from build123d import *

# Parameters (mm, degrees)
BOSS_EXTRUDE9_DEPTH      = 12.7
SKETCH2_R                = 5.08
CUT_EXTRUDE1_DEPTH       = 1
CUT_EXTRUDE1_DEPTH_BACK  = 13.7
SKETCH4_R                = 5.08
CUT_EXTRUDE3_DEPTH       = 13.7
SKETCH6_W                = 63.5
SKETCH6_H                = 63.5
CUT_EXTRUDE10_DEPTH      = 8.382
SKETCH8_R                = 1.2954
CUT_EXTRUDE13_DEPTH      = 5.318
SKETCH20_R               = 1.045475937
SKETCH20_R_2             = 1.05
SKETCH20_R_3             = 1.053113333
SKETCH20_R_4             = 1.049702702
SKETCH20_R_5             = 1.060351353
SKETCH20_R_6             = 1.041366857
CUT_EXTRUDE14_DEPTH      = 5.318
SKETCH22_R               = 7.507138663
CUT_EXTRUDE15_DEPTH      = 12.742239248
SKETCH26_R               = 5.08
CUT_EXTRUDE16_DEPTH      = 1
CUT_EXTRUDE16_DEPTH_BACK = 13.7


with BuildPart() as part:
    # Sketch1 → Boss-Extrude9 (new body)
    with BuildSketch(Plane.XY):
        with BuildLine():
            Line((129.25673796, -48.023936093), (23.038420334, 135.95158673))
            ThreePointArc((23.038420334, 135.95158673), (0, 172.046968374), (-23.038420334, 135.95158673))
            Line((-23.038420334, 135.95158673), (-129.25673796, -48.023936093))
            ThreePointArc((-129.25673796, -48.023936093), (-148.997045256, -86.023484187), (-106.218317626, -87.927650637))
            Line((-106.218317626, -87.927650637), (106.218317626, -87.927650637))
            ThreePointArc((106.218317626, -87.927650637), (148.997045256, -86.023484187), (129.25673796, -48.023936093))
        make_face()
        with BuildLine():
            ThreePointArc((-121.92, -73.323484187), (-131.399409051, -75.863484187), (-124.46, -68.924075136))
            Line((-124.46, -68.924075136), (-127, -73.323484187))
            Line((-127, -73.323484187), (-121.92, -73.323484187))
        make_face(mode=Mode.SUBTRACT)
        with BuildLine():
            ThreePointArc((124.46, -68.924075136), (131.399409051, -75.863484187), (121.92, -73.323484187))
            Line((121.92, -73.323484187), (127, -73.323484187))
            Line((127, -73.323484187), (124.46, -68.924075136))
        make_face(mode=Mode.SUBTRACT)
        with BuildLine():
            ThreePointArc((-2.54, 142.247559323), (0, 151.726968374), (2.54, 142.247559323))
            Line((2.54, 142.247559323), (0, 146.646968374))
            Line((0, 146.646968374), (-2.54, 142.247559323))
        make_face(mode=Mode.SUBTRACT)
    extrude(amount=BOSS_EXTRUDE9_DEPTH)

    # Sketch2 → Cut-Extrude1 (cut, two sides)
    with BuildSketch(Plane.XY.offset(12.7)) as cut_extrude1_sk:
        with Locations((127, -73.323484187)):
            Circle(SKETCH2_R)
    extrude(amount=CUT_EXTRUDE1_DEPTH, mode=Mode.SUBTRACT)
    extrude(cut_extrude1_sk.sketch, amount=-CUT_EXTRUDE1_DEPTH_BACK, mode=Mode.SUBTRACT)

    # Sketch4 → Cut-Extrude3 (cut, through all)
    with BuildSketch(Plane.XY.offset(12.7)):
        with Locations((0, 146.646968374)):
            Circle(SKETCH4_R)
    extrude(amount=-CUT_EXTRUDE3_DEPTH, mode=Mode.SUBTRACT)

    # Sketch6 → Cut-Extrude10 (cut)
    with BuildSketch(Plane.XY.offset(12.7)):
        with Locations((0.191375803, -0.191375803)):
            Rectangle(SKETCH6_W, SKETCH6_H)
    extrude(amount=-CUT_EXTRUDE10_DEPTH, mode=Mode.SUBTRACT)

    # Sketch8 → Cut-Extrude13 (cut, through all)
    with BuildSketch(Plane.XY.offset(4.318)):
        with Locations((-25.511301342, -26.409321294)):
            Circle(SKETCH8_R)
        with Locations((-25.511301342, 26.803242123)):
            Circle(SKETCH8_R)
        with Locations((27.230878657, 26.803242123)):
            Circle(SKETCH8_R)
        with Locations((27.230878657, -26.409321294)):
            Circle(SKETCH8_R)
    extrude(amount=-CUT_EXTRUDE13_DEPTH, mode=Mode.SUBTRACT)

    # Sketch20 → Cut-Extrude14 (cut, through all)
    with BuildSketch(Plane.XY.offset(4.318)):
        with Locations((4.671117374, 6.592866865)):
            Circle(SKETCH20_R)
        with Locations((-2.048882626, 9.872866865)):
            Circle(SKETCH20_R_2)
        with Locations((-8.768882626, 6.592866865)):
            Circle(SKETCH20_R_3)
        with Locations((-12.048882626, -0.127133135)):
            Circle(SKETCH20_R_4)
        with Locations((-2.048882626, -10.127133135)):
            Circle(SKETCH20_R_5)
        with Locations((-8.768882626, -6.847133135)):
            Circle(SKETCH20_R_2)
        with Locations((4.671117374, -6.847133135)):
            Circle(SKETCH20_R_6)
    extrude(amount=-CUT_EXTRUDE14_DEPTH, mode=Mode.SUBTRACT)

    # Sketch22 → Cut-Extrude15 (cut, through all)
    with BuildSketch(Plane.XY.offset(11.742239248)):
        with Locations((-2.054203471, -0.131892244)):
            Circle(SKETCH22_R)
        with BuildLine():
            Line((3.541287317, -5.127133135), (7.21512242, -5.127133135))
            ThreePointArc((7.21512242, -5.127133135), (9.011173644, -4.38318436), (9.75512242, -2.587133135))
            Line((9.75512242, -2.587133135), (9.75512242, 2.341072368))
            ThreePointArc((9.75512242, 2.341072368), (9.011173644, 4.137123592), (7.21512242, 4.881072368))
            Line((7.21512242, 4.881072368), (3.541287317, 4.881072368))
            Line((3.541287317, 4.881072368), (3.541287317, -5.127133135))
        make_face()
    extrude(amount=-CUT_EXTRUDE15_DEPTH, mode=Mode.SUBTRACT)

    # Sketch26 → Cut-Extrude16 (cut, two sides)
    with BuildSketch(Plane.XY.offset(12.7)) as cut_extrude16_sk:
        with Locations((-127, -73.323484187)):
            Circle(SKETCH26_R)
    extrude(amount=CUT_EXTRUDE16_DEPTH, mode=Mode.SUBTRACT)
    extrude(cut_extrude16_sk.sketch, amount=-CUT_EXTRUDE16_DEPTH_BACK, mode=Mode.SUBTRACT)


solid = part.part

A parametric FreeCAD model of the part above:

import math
import FreeCAD as App
import Part
import Sketcher
from FreeCAD import Vector
Q = App.Units.Quantity


def add_polygon(sketch, points):
    """Adds a closed chain of lines whose ends are joined by coincident constraints."""
    first, n = sketch.GeometryCount, len(points)
    for a, b in zip(points, points[1:] + points[:1]):
        sketch.addGeometry(Part.LineSegment(App.Vector(*a, 0), App.Vector(*b, 0)), False)
    for i in range(n):
        sketch.addConstraint(Sketcher.Constraint("Coincident", first + i, 2, first + (i + 1) % n, 1))

doc = App.newDocument("Part")
body = doc.addObject("PartDesign::Body", "Body")

sketch1 = body.newObject("Sketcher::SketchObject", "Sketch")
sketch1.AttachmentSupport = (doc.getObject("XY_Plane"), [""])
sketch1.MapMode = "FlatFace"
sketch1.addGeometry([
    Part.LineSegment(Vector(129.256738, -48.023936, 0), Vector(23.03842, 135.951587, 0)),
    Part.ArcOfCircle(Part.Circle(Vector(0, 146.646968, 0), Vector(0, 0, 1), 25.4), math.radians(-24.902666), math.radians(204.902666)),
    Part.LineSegment(Vector(-23.03842, 135.951587, 0), Vector(-129.256738, -48.023936, 0)),
    Part.ArcOfCircle(Part.Circle(Vector(-127, -73.323484, 0), Vector(0, 0, 1), 25.4), math.radians(95.097334), math.radians(324.902666)),
    Part.LineSegment(Vector(-106.218318, -87.927651, 0), Vector(106.218318, -87.927651, 0)),
    Part.ArcOfCircle(Part.Circle(Vector(127, -73.323484, 0), Vector(0, 0, 1), 25.4), math.radians(-144.902666), math.radians(84.902666)),
    Part.LineSegment(Vector(-127, -73.323484, 0), Vector(-121.92, -73.323484, 0)),
    Part.ArcOfCircle(Part.Circle(Vector(-127, -73.323484, 0), Vector(0, 0, 1), 5.08), math.radians(60), math.radians(360)),
    Part.LineSegment(Vector(-124.46, -68.924075, 0), Vector(-127, -73.323484, 0)),
    Part.LineSegment(Vector(127, -73.323484, 0), Vector(124.46, -68.924075, 0)),
    Part.ArcOfCircle(Part.Circle(Vector(127, -73.323484, 0), Vector(0, 0, 1), 5.08), math.radians(180), math.radians(480)),
    Part.LineSegment(Vector(121.92, -73.323484, 0), Vector(127, -73.323484, 0)),
    Part.LineSegment(Vector(0, 146.646968, 0), Vector(-2.54, 142.247559, 0)),
    Part.ArcOfCircle(Part.Circle(Vector(0, 146.646968, 0), Vector(0, 0, 1), 5.08), math.radians(-60), math.radians(240)),
    Part.LineSegment(Vector(2.54, 142.247559, 0), Vector(0, 146.646968, 0)),
], False)
sketch1.addConstraint([
    Sketcher.Constraint("Coincident", 0, 2, 1, 1),
    Sketcher.Constraint("Coincident", 1, 2, 2, 1),
    Sketcher.Constraint("Coincident", 2, 2, 3, 1),
    Sketcher.Constraint("Coincident", 3, 2, 4, 1),
    Sketcher.Constraint("Coincident", 4, 2, 5, 1),
    Sketcher.Constraint("Coincident", 5, 2, 0, 1),
    Sketcher.Constraint("Coincident", 6, 2, 7, 2),
    Sketcher.Constraint("Coincident", 7, 1, 8, 1),
    Sketcher.Constraint("Coincident", 8, 2, 6, 1),
    Sketcher.Constraint("Coincident", 9, 2, 10, 2),
    Sketcher.Constraint("Coincident", 10, 1, 11, 1),
    Sketcher.Constraint("Coincident", 11, 2, 9, 1),
    Sketcher.Constraint("Coincident", 12, 2, 13, 2),
    Sketcher.Constraint("Coincident", 13, 1, 14, 1),
    Sketcher.Constraint("Coincident", 14, 2, 12, 1),
    Sketcher.Constraint("Horizontal", 4),
    Sketcher.Constraint("Horizontal", 6),
    Sketcher.Constraint("Horizontal", 11),
    Sketcher.Constraint("Coincident", 7, 3, 3, 3),
    Sketcher.Constraint("Coincident", 10, 3, 5, 3),
    Sketcher.Constraint("Coincident", 13, 3, 1, 3),
    Sketcher.Constraint("Coincident", 8, 2, 3, 3),
    Sketcher.Constraint("Coincident", 11, 2, 5, 3),
    Sketcher.Constraint("Coincident", 14, 2, 1, 3),
    Sketcher.Constraint("Equal", 1, 3),
    Sketcher.Constraint("Equal", 3, 5),
    Sketcher.Constraint("Equal", 7, 10),
    Sketcher.Constraint("Equal", 10, 13),
    Sketcher.Constraint("Symmetric", 3, 3, 5, 3, -2),
    Sketcher.Constraint("Symmetric", 0, 2, 1, 2, -2),
    Sketcher.Constraint("Parallel", 2, 8),
    Sketcher.Constraint("Parallel", 0, 9),
    Sketcher.Constraint("Parallel", 8, 12),
    Sketcher.Constraint("Parallel", 9, 14),
    Sketcher.Constraint("Horizontal", 2, 2, 5, 2),
    Sketcher.Constraint("Radius", 1, Q("1 in")),
    Sketcher.Constraint("Radius", 7, Q("0.2 in")),
    Sketcher.Constraint("DistanceX", 3, 3, -1, 1, Q("5 in")),
    Sketcher.Constraint("Angle", 0, Q("120 deg")),
    Sketcher.Constraint("DistanceX", 4, 1, 4, 2, Q("212.436635 mm")),
    Sketcher.Constraint("DistanceY", -1, 1, 1, 3, Q("146.646968 mm")),
    Sketcher.Constraint("DistanceX", -1, 1, 0, 2, Q("23.03842 mm")),
    Sketcher.Constraint("DistanceY", 3, 2, -1, 1, Q("87.927651 mm")),
])
pad1 = body.newObject("PartDesign::Pad", "Pad")
pad1.Profile = sketch1
pad1.Length = Q("0.5 in")

sketch2 = body.newObject("Sketcher::SketchObject", "Sketch001")
sketch2.AttachmentSupport = (doc.getObject("XY_Plane"), [""])
sketch2.MapMode = "FlatFace"
sketch2.AttachmentOffset = App.Placement(Vector(0, 0, 0.5 * 25.4), App.Rotation())
sketch2.addGeometry(Part.Circle(Vector(127, -73.323484, 0), Vector(0, 0, 1), 5.08), False)
sketch2.addConstraint([
    Sketcher.Constraint("Diameter", 0, Q("0.4 in")),
    Sketcher.Constraint("DistanceX", -1, 1, 0, 3, Q("5 in")),
    Sketcher.Constraint("DistanceY", 0, 3, -1, 1, Q("73.323484 mm")),
])
pocket1 = body.newObject("PartDesign::Pocket", "Pocket")
pocket1.Profile = sketch2
pocket1.Type = "ThroughAll"
pocket1.Midplane = True

sketch3 = body.newObject("Sketcher::SketchObject", "Sketch002")
sketch3.AttachmentSupport = (doc.getObject("XY_Plane"), [""])
sketch3.MapMode = "FlatFace"
sketch3.AttachmentOffset = App.Placement(Vector(0, 0, 0.5 * 25.4), App.Rotation())
sketch3.addGeometry(Part.Circle(Vector(0, 146.646968, 0), Vector(0, 0, 1), 5.08), False)
sketch3.addConstraint([
    Sketcher.Constraint("PointOnObject", 0, 3, -2),
    Sketcher.Constraint("Diameter", 0, Q("0.4 in")),
    Sketcher.Constraint("DistanceY", -1, 1, 0, 3, Q("146.646968 mm")),
])
pocket2 = body.newObject("PartDesign::Pocket", "Pocket001")
pocket2.Profile = sketch3
pocket2.Type = "ThroughAll"

sketch4 = body.newObject("Sketcher::SketchObject", "Sketch003")
sketch4.AttachmentSupport = (doc.getObject("XY_Plane"), [""])
sketch4.MapMode = "FlatFace"
sketch4.AttachmentOffset = App.Placement(Vector(0, 0, 0.5 * 25.4), App.Rotation())
add_polygon(sketch4, [(-31.558624, 31.558624), (-31.558624, -31.941376), (31.941376, -31.941376), (31.941376, 31.558624)])
sketch4.addConstraint([
    Sketcher.Constraint("Vertical", 0),
    Sketcher.Constraint("Horizontal", 1),
    Sketcher.Constraint("Vertical", 2),
    Sketcher.Constraint("Horizontal", 3),
    Sketcher.Constraint("Equal", 3, 0),
    Sketcher.Constraint("DistanceX", 1, 1, 1, 2, Q("2.5 in")),
    Sketcher.Constraint("DistanceX", 0, 2, -1, 1, Q("31.558624 mm")),
    Sketcher.Constraint("DistanceY", 0, 2, -1, 1, Q("31.941376 mm")),
])
pocket3 = body.newObject("PartDesign::Pocket", "Pocket002")
pocket3.Profile = sketch4
pocket3.Length = Q("0.33 in")

sketch5 = body.newObject("Sketcher::SketchObject", "Sketch004")
sketch5.AttachmentSupport = (doc.getObject("XY_Plane"), [""])
sketch5.MapMode = "FlatFace"
sketch5.AttachmentOffset = App.Placement(Vector(0, 0, 0.17 * 25.4), App.Rotation())
sketch5.addGeometry([
    Part.Circle(Vector(-25.511301, -26.409321, 0), Vector(0, 0, 1), 1.2954),
    Part.Circle(Vector(-25.511301, 26.803242, 0), Vector(0, 0, 1), 1.2954),
    Part.Circle(Vector(27.230879, 26.803242, 0), Vector(0, 0, 1), 1.2954),
    Part.Circle(Vector(27.230879, -26.409321, 0), Vector(0, 0, 1), 1.2954),
], False)
sketch5.addConstraint([
    Sketcher.Constraint("Equal", 0, 1),
    Sketcher.Constraint("Equal", 1, 2),
    Sketcher.Constraint("Equal", 2, 3),
    Sketcher.Constraint("Horizontal", 1, 3, 2, 3),
    Sketcher.Constraint("Horizontal", 0, 3, 3, 3),
    Sketcher.Constraint("Vertical", 0, 3, 1, 3),
    Sketcher.Constraint("Vertical", 2, 3, 3, 3),
    Sketcher.Constraint("Diameter", 0, Q("0.102 in")),
    Sketcher.Constraint("DistanceX", 0, 3, -1, 1, Q("25.511301 mm")),
    Sketcher.Constraint("DistanceY", 0, 3, -1, 1, Q("26.409321 mm")),
    Sketcher.Constraint("DistanceX", -1, 1, 2, 3, Q("27.230879 mm")),
    Sketcher.Constraint("DistanceY", -1, 1, 1, 3, Q("26.803242 mm")),
])
pocket4 = body.newObject("PartDesign::Pocket", "Pocket003")
pocket4.Profile = sketch5
pocket4.Type = "ThroughAll"

sketch6 = body.newObject("Sketcher::SketchObject", "Sketch005")
sketch6.AttachmentSupport = (doc.getObject("XY_Plane"), [""])
sketch6.MapMode = "FlatFace"
sketch6.AttachmentOffset = App.Placement(Vector(0, 0, 0.17 * 25.4), App.Rotation())
sketch6.addGeometry([
    Part.Circle(Vector(4.671117, 6.592867, 0), Vector(0, 0, 1), 1.045476),
    Part.Circle(Vector(-2.048883, 9.872867, 0), Vector(0, 0, 1), 1.05),
    Part.Circle(Vector(-8.768883, 6.592867, 0), Vector(0, 0, 1), 1.053113),
    Part.Circle(Vector(-12.048883, -0.127133, 0), Vector(0, 0, 1), 1.049703),
    Part.Circle(Vector(-2.048883, -10.127133, 0), Vector(0, 0, 1), 1.060351),
    Part.Circle(Vector(-8.768883, -6.847133, 0), Vector(0, 0, 1), 1.05),
    Part.Circle(Vector(4.671117, -6.847133, 0), Vector(0, 0, 1), 1.041367),
], False)
sketch6.addConstraint([
    Sketcher.Constraint("Equal", 1, 5),
    Sketcher.Constraint("Horizontal", 0, 3, 2, 3),
    Sketcher.Constraint("Horizontal", 5, 3, 6, 3),
    Sketcher.Constraint("Vertical", 1, 3, 4, 3),
    Sketcher.Constraint("Vertical", 2, 3, 5, 3),
    Sketcher.Constraint("Vertical", 0, 3, 6, 3),
    Sketcher.Constraint("Diameter", 1, Q("2.1 mm")),
    Sketcher.Constraint("Diameter", 0, Q("2.090952 mm")),
    Sketcher.Constraint("Diameter", 2, Q("2.106227 mm")),
    Sketcher.Constraint("Diameter", 3, Q("2.099405 mm")),
    Sketcher.Constraint("Diameter", 4, Q("2.120703 mm")),
    Sketcher.Constraint("Diameter", 6, Q("2.082734 mm")),
    Sketcher.Constraint("DistanceX", 1, 3, 0, 3, Q("6.72 mm")),
    Sketcher.Constraint("DistanceY", 0, 3, 1, 3, Q("3.28 mm")),
    Sketcher.Constraint("DistanceX", 2, 3, 1, 3, Q("6.72 mm")),
    Sketcher.Constraint("DistanceX", 3, 3, 2, 3, Q("3.28 mm")),
    Sketcher.Constraint("DistanceY", 3, 3, 2, 3, Q("6.72 mm")),
    Sketcher.Constraint("DistanceY", 4, 3, 3, 3, Q("10 mm")),
    Sketcher.Constraint("DistanceY", 5, 3, 3, 3, Q("6.72 mm")),
    Sketcher.Constraint("DistanceX", -1, 1, 0, 3, Q("4.671117 mm")),
    Sketcher.Constraint("DistanceY", -1, 1, 0, 3, Q("6.592867 mm")),
])
pocket5 = body.newObject("PartDesign::Pocket", "Pocket004")
pocket5.Profile = sketch6
pocket5.Type = "ThroughAll"

sketch7 = body.newObject("Sketcher::SketchObject", "Sketch006")
sketch7.AttachmentSupport = (doc.getObject("XY_Plane"), [""])
sketch7.MapMode = "FlatFace"
sketch7.AttachmentOffset = App.Placement(Vector(0, 0, 11.742239), App.Rotation())
sketch7.addGeometry([
    Part.LineSegment(Vector(3.549786, -5.127133, 0), Vector(7.215122, -5.127133, 0)),
    Part.ArcOfCircle(Part.Circle(Vector(7.215122, -2.587133, 0), Vector(0, 0, 1), 2.54), math.radians(-90), math.radians(0)),
    Part.LineSegment(Vector(9.755122, -2.587133, 0), Vector(9.755122, 2.341072, 0)),
    Part.ArcOfCircle(Part.Circle(Vector(7.215122, 2.341072, 0), Vector(0, 0, 1), 2.54), math.radians(0), math.radians(90)),
    Part.LineSegment(Vector(7.215122, 4.881072, 0), Vector(3.541287, 4.881072, 0)),
    Part.LineSegment(Vector(3.541287, 4.881072, 0), Vector(3.541287, 4.872867, 0)),
    Part.ArcOfCircle(Part.Circle(Vector(-2.054203, -0.131892, 0), Vector(0, 0, 1), 7.507139), math.radians(41.810315), math.radians(318.287074)),
], False)
sketch7.addConstraint([
    Sketcher.Constraint("Tangent", 0, 2, 1, 1),
    Sketcher.Constraint("Tangent", 1, 2, 2, 1),
    Sketcher.Constraint("Tangent", 2, 2, 3, 1),
    Sketcher.Constraint("Tangent", 3, 2, 4, 1),
    Sketcher.Constraint("Coincident", 4, 2, 5, 1),
    Sketcher.Constraint("Coincident", 5, 2, 6, 1),
    Sketcher.Constraint("Coincident", 6, 2, 0, 1),
    Sketcher.Constraint("Horizontal", 0),
    Sketcher.Constraint("Vertical", 2),
    Sketcher.Constraint("Horizontal", 4),
    Sketcher.Constraint("Vertical", 5),
    Sketcher.Constraint("Equal", 1, 3),
    Sketcher.Constraint("Radius", 1, Q("0.1 in")),
    Sketcher.Constraint("Radius", 6, Q("7.507139 mm")),
    Sketcher.Constraint("DistanceX", 0, 1, 0, 2, Q("3.665336 mm")),
    Sketcher.Constraint("DistanceX", 4, 2, 4, 1, Q("3.673835 mm")),
    Sketcher.Constraint("DistanceY", 2, 1, 2, 2, Q("4.928206 mm")),
    Sketcher.Constraint("DistanceY", 5, 2, 5, 1, Q("0.008206 mm")),
    Sketcher.Constraint("DistanceX", -1, 1, 1, 3, Q("7.215122 mm")),
    Sketcher.Constraint("DistanceY", 1, 3, -1, 1, Q("2.587133 mm")),
])
pocket6 = body.newObject("PartDesign::Pocket", "Pocket005")
pocket6.Profile = sketch7
pocket6.Type = "ThroughAll"

sketch8 = body.newObject("Sketcher::SketchObject", "Sketch007")
sketch8.AttachmentSupport = (doc.getObject("XY_Plane"), [""])
sketch8.MapMode = "FlatFace"
sketch8.AttachmentOffset = App.Placement(Vector(0, 0, 0.5 * 25.4), App.Rotation())
sketch8.addGeometry(Part.Circle(Vector(-127, -73.323484, 0), Vector(0, 0, 1), 5.08), False)
sketch8.addConstraint([
    Sketcher.Constraint("Diameter", 0, Q("0.4 in")),
    Sketcher.Constraint("DistanceX", 0, 3, -1, 1, Q("5 in")),
    Sketcher.Constraint("DistanceY", 0, 3, -1, 1, Q("73.323484 mm")),
])
pocket7 = body.newObject("PartDesign::Pocket", "Pocket006")
pocket7.Profile = sketch8
pocket7.Type = "ThroughAll"
pocket7.Midplane = True

doc.recompute()
